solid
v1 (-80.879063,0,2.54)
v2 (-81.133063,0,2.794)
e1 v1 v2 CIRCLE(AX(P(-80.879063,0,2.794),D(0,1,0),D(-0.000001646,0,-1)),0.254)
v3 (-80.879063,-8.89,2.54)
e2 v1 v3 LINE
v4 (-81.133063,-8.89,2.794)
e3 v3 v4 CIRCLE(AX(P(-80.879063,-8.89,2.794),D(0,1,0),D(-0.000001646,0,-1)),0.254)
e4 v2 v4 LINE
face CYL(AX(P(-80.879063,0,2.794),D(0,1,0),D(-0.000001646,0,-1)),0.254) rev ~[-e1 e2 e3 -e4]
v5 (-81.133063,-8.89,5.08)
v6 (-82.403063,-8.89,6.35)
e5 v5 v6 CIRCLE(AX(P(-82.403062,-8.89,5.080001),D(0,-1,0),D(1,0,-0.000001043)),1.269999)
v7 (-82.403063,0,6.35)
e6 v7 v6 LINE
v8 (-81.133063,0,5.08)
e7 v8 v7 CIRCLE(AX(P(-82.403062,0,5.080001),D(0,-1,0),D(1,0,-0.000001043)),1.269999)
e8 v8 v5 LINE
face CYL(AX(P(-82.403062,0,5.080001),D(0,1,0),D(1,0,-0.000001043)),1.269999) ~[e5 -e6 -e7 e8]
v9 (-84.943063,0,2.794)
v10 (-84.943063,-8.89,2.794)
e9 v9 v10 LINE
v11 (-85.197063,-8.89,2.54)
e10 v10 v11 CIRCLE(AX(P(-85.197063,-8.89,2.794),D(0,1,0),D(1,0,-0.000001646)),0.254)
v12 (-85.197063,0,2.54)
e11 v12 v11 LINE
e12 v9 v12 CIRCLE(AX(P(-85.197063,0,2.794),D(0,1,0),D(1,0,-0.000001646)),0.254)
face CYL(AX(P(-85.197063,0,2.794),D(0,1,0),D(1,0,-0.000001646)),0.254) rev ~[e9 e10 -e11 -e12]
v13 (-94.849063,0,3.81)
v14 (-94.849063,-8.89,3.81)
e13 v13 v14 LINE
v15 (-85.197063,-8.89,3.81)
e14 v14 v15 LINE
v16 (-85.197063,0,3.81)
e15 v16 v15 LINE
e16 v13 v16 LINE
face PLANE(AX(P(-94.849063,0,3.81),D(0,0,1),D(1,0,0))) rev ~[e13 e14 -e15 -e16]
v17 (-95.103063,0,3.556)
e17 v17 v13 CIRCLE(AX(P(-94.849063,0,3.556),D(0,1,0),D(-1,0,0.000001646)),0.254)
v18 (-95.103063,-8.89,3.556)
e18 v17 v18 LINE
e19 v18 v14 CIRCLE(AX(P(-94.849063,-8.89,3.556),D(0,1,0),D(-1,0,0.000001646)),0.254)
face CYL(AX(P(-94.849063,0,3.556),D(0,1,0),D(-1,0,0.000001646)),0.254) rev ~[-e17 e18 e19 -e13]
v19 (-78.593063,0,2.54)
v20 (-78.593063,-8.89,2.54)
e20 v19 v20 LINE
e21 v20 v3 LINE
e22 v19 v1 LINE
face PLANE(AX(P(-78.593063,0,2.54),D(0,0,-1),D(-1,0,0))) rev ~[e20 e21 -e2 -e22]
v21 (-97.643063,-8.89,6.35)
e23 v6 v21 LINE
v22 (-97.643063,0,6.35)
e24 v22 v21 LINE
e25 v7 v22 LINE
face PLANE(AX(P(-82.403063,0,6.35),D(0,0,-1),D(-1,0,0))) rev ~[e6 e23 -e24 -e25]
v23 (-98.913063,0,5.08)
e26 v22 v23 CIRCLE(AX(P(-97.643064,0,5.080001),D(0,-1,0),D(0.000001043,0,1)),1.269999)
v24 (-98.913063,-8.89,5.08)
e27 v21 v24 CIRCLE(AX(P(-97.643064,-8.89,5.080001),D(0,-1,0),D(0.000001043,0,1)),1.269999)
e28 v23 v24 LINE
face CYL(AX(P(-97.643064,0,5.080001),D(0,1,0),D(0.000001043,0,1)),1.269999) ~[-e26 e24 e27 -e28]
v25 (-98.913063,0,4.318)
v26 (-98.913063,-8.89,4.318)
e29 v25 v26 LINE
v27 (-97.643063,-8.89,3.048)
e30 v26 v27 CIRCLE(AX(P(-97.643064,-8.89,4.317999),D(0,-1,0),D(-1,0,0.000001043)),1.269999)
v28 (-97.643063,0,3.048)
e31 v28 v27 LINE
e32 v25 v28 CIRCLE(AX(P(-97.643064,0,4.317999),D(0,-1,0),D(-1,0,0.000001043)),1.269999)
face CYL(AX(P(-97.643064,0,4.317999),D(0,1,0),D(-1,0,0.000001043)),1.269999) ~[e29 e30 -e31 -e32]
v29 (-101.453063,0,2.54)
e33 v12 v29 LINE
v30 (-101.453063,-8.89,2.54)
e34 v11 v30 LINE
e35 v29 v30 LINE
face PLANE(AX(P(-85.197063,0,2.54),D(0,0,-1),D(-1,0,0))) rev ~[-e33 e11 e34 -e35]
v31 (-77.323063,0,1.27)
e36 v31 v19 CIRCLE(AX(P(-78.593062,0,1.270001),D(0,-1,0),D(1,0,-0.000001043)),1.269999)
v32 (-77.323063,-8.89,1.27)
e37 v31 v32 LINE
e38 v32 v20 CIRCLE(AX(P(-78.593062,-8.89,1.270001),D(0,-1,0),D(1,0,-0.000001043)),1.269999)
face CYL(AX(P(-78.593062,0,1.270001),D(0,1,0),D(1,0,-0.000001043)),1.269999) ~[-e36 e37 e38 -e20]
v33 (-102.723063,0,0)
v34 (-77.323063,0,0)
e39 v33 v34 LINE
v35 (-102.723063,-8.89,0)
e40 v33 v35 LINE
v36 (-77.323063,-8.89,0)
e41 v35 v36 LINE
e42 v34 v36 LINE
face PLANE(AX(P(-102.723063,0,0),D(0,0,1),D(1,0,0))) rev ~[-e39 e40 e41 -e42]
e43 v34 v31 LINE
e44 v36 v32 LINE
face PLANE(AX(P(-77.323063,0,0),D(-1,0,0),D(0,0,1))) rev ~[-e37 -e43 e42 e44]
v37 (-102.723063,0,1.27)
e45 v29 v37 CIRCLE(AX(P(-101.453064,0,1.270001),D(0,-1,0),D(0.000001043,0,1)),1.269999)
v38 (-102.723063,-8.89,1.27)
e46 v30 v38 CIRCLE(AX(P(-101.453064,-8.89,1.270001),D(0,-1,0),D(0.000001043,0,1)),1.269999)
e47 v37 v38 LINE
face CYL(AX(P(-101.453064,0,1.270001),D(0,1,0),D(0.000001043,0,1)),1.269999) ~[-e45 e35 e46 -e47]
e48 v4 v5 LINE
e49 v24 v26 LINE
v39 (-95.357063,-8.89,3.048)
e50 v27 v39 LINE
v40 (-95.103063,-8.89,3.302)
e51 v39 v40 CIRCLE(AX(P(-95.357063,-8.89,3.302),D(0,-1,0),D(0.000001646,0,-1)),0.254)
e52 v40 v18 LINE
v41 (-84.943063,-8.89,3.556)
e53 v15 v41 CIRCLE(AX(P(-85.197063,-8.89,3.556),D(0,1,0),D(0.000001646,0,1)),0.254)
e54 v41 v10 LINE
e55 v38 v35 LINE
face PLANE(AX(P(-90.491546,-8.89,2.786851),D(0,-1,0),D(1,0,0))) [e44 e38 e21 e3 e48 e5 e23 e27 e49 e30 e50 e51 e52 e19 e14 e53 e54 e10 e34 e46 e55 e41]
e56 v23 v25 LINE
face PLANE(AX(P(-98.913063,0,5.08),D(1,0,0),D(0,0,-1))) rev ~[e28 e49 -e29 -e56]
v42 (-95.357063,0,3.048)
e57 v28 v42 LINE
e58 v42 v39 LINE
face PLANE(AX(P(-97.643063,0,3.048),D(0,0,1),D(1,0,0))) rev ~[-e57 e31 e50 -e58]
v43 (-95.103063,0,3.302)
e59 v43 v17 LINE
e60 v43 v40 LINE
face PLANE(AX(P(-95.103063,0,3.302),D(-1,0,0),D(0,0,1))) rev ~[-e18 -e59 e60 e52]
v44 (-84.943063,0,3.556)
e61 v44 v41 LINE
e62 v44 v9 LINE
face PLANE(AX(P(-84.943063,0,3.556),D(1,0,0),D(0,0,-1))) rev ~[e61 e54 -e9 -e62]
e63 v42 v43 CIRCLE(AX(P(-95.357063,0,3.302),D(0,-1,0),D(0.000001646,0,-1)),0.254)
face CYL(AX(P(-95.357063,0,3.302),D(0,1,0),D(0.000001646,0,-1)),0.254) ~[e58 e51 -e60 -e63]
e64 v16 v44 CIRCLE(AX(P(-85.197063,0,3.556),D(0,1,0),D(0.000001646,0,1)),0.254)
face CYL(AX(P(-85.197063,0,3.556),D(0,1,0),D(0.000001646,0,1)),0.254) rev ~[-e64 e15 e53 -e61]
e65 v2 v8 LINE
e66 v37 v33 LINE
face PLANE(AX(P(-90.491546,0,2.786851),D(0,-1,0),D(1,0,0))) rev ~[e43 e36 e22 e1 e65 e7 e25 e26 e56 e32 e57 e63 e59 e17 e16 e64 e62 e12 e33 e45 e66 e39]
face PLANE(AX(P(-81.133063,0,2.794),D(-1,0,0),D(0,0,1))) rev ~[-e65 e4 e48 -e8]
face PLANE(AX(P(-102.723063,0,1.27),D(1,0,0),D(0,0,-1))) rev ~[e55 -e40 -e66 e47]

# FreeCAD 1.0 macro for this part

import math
import FreeCAD as App
import Part
import Sketcher
from FreeCAD import Vector
Q = App.Units.Quantity

doc = App.newDocument("Part")
body = doc.addObject("PartDesign::Body", "Body")

# Sketch on XZ plane
sketch1 = body.newObject("Sketcher::SketchObject", "Sketch")
sketch1.AttachmentSupport = (doc.getObject("XZ_Plane"), [""])
sketch1.MapMode = "FlatFace"
sketch1.addGeometry([
    Part.LineSegment(Vector(-102.72, 1.27, 0), Vector(-102.72, 0, 0)),  # 0
    Part.LineSegment(Vector(-102.72, 0, 0), Vector(-77.32, 0, 0)),  # 1
    Part.LineSegment(Vector(-77.32, 0, 0), Vector(-77.32, 1.27, 0)),  # 2
    Part.ArcOfCircle(Part.Circle(Vector(-78.59, 1.27, 0), Vector(0, 0, 1), 1.27), math.radians(0), math.radians(90)),  # 3
    Part.LineSegment(Vector(-78.59, 2.54, 0), Vector(-80.88, 2.54, 0)),  # 4
    Part.ArcOfCircle(Part.Circle(Vector(-80.88, 2.79, 0), Vector(0, 0, 1), 0.25), math.radians(-180), math.radians(-90)),  # 5
    Part.LineSegment(Vector(-81.13, 2.79, 0), Vector(-81.13, 5.08, 0)),  # 6
    Part.ArcOfCircle(Part.Circle(Vector(-82.4, 5.08, 0), Vector(0, 0, 1), 1.27), math.radians(0), math.radians(90)),  # 7
    Part.LineSegment(Vector(-82.4, 6.35, 0), Vector(-97.64, 6.35, 0)),  # 8
    Part.ArcOfCircle(Part.Circle(Vector(-97.64, 5.08, 0), Vector(0, 0, 1), 1.27), math.radians(90), math.radians(180)),  # 9
    Part.LineSegment(Vector(-98.91, 5.08, 0), Vector(-98.91, 4.32, 0)),  # 10
    Part.ArcOfCircle(Part.Circle(Vector(-97.64, 4.32, 0), Vector(0, 0, 1), 1.27), math.radians(180), math.radians(270)),  # 11
    Part.LineSegment(Vector(-97.64, 3.05, 0), Vector(-95.36, 3.05, 0)),  # 12
    Part.ArcOfCircle(Part.Circle(Vector(-95.36, 3.3, 0), Vector(0, 0, 1), 0.25), math.radians(-90), math.radians(0)),  # 13
    Part.LineSegment(Vector(-95.1, 3.3, 0), Vector(-95.1, 3.56, 0)),  # 14
    Part.ArcOfCircle(Part.Circle(Vector(-94.85, 3.56, 0), Vector(0, 0, 1), 0.25), math.radians(90), math.radians(180)),  # 15
    Part.LineSegment(Vector(-94.85, 3.81, 0), Vector(-85.2, 3.81, 0)),  # 16
    Part.ArcOfCircle(Part.Circle(Vector(-85.2, 3.56, 0), Vector(0, 0, 1), 0.25), math.radians(0), math.radians(90)),  # 17
    Part.LineSegment(Vector(-84.94, 3.56, 0), Vector(-84.94, 2.79, 0)),  # 18
    Part.ArcOfCircle(Part.Circle(Vector(-85.2, 2.79, 0), Vector(0, 0, 1), 0.25), math.radians(-90), math.radians(0)),  # 19
    Part.LineSegment(Vector(-85.2, 2.54, 0), Vector(-101.45, 2.54, 0)),  # 20
    Part.ArcOfCircle(Part.Circle(Vector(-101.45, 1.27, 0), Vector(0, 0, 1), 1.27), math.radians(90), math.radians(180)),  # 21
], False)
sketch1.addConstraint([
    Sketcher.Constraint("Coincident", 0, 2, 1, 1),
    Sketcher.Constraint("Coincident", 1, 2, 2, 1),
    Sketcher.Constraint("Tangent", 2, 2, 3, 1),
    Sketcher.Constraint("Tangent", 3, 2, 4, 1),
    Sketcher.Constraint("Tangent", 4, 2, 5, 2),
    Sketcher.Constraint("Tangent", 5, 1, 6, 1),
    Sketcher.Constraint("Tangent", 6, 2, 7, 1),
    Sketcher.Constraint("Tangent", 7, 2, 8, 1),
    Sketcher.Constraint("Tangent", 8, 2, 9, 1),
    Sketcher.Constraint("Tangent", 9, 2, 10, 1),
    Sketcher.Constraint("Tangent", 10, 2, 11, 1),
    Sketcher.Constraint("Tangent", 11, 2, 12, 1),
    Sketcher.Constraint("Tangent", 12, 2, 13, 1),
    Sketcher.Constraint("Tangent", 13, 2, 14, 1),
    Sketcher.Constraint("Tangent", 14, 2, 15, 2),
    Sketcher.Constraint("Tangent", 15, 1, 16, 1),
    Sketcher.Constraint("Tangent", 16, 2, 17, 2),
    Sketcher.Constraint("Tangent", 17, 1, 18, 1),
    Sketcher.Constraint("Tangent", 18, 2, 19, 2),
    Sketcher.Constraint("Tangent", 19, 1, 20, 1),
    Sketcher.Constraint("Tangent", 20, 2, 21, 1),
    Sketcher.Constraint("Tangent", 21, 2, 0, 1),
    Sketcher.Constraint("Vertical", 0),
    Sketcher.Constraint("Horizontal", 1),
    Sketcher.Constraint("Vertical", 2),
    Sketcher.Constraint("Horizontal", 4),
    Sketcher.Constraint("Vertical", 6),
    Sketcher.Constraint("Horizontal", 8),
    Sketcher.Constraint("Vertical", 10),
    Sketcher.Constraint("Horizontal", 12),
    Sketcher.Constraint("Vertical", 14),
    Sketcher.Constraint("Horizontal", 16),
    Sketcher.Constraint("Vertical", 18),
    Sketcher.Constraint("Horizontal", 20),
    Sketcher.Constraint("Equal", 3, 7),
    Sketcher.Constraint("Equal", 7, 9),
    Sketcher.Constraint("Equal", 9, 11),
    Sketcher.Constraint("Equal", 5, 13),
    Sketcher.Constraint("Equal", 13, 15),
    Sketcher.Constraint("Equal", 15, 17),
    Sketcher.Constraint("Equal", 17, 19),
    Sketcher.Constraint("Equal", 11, 21),
    Sketcher.Constraint("PointOnObject", 0, 2, -1),
    Sketcher.Constraint("Horizontal", 5, 3, 19, 3),
    Sketcher.Constraint("Equal", 4, 12),
    Sketcher.Constraint("Equal", 12, 6),
    Sketcher.Constraint("Equal", 10, 18),
    Sketcher.Constraint("DistanceX", 1, 1, 1, 2, Q("1 in")),
    Sketcher.Constraint("Radius", 3, Q("0.0499999 in")),
    Sketcher.Constraint("Radius", 5, Q("0.01 in")),
    Sketcher.Constraint("DistanceX", 8, 2, 8, 1, Q("0.6 in")),
    Sketcher.Constraint("DistanceX", 4, 2, 4, 1, Q("0.09 in")),
    Sketcher.Constraint("DistanceX", 16, 1, 16, 2, Q("0.38 in")),
    Sketcher.Constraint("DistanceY", 0, 2, 0, 1, Q("0.05 in")),
    Sketcher.Constraint("DistanceY", 10, 2, 10, 1, Q("0.03 in")),
    Sketcher.Constraint("DistanceX", 3, 3, -1, 1, Q("78.593062 mm")),
])
pad1 = body.newObject("PartDesign::Pad", "Pad")
pad1.Profile = sketch1
pad1.Length = Q("0.35 in")

doc.recompute()
